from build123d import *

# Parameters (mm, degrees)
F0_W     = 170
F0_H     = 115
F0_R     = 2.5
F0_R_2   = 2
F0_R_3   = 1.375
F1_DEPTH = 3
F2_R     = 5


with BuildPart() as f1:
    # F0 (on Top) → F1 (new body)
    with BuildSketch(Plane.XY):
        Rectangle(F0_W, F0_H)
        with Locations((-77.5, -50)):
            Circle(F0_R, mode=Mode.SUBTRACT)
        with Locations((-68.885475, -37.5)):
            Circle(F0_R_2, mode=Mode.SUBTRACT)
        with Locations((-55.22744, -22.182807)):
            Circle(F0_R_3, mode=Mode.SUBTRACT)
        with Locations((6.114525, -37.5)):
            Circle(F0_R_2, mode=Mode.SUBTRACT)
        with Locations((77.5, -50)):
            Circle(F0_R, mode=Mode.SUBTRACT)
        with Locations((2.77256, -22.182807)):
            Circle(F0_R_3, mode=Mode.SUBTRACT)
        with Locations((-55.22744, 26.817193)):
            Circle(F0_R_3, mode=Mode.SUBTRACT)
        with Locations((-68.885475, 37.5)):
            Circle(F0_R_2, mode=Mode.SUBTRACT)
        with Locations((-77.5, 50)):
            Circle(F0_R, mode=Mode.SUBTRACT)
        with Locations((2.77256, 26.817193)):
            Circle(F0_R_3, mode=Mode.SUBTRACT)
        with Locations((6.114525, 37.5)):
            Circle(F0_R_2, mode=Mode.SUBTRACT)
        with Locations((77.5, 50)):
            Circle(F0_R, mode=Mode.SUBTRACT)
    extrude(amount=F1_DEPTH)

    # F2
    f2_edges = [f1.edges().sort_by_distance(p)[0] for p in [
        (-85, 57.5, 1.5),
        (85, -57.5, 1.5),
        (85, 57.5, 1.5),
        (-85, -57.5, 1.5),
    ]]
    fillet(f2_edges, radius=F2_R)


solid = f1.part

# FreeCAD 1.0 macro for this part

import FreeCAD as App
import Part
import Sketcher
from FreeCAD import Vector
Q = App.Units.Quantity


def edges_at(feature, points):
    """Names of the edges that pass closest to the given points."""
    edges = feature.Shape.Edges
    near = lambda p: min(range(len(edges)), key=lambda i: edges[i].distToShape(Part.Vertex(*p))[0])
    return sorted({f"Edge{near(p) + 1}" for p in points})

doc = App.newDocument("Part")
body = doc.addObject("PartDesign::Body", "Body")

# Sketch on XY plane
sketch1 = body.newObject("Sketcher::SketchObject", "Sketch")
sketch1.AttachmentSupport = (doc.getObject("XY_Plane"), [""])
sketch1.MapMode = "FlatFace"
sketch1.addGeometry(Part.LineSegment(Vector(-85, 57.5, 0), Vector(-85, -57.5, 0)), False)
sketch1.addGeometry(Part.LineSegment(Vector(-85, -57.5, 0), Vector(85, -57.5, 0)), False)
sketch1.addGeometry(Part.LineSegment(Vector(85, -57.5, 0), Vector(85, 57.5, 0)), False)
sketch1.addGeometry(Part.LineSegment(Vector(85, 57.5, 0), Vector(-85, 57.5, 0)), False)
sketch1.addGeometry(Part.Circle(Vector(-77.5, -50, 0), Vector(0, 0, 1), 2.5), False)
sketch1.addGeometry(Part.Circle(Vector(-68.885475, -37.5, 0), Vector(0, 0, 1), 2), False)
sketch1.addGeometry(Part.Circle(Vector(-55.22744, -22.182807, 0), Vector(0, 0, 1), 1.375), False)
sketch1.addGeometry(Part.Circle(Vector(6.114525, -37.5, 0), Vector(0, 0, 1), 2), False)
sketch1.addGeometry(Part.Circle(Vector(77.5, -50, 0), Vector(0, 0, 1), 2.5), False)
sketch1.addGeometry(Part.Circle(Vector(2.77256, -22.182807, 0), Vector(0, 0, 1), 1.375), False)
sketch1.addGeometry(Part.Circle(Vector(-68.885475, 37.5, 0), Vector(0, 0, 1), 2), False)
sketch1.addGeometry(Part.Circle(Vector(-55.22744, 26.817193, 0), Vector(0, 0, 1), 1.375), False)
sketch1.addGeometry(Part.Circle(Vector(-77.5, 50, 0), Vector(0, 0, 1), 2.5), False)
sketch1.addGeometry(Part.Circle(Vector(2.77256, 26.817193, 0), Vector(0, 0, 1), 1.375), False)
sketch1.addGeometry(Part.Circle(Vector(6.114525, 37.5, 0), Vector(0, 0, 1), 2), False)
sketch1.addGeometry(Part.Circle(Vector(77.5, 50, 0), Vector(0, 0, 1), 2.5), False)
sketch1.addConstraint(Sketcher.Constraint("Coincident", 0, 2, 1, 1))
sketch1.addConstraint(Sketcher.Constraint("Coincident", 1, 2, 2, 1))
sketch1.addConstraint(Sketcher.Constraint("Coincident", 2, 2, 3, 1))
sketch1.addConstraint(Sketcher.Constraint("Coincident", 3, 2, 0, 1))
sketch1.addConstraint(Sketcher.Constraint("Vertical", 0))
sketch1.addConstraint(Sketcher.Constraint("Horizontal", 1))
sketch1.addConstraint(Sketcher.Constraint("Vertical", 2))
sketch1.addConstraint(Sketcher.Constraint("Horizontal", 3))
sketch1.addConstraint(Sketcher.Constraint("Equal", 5, 7))
sketch1.addConstraint(Sketcher.Constraint("Equal", 4, 8))
sketch1.addConstraint(Sketcher.Constraint("Equal", 6, 9))
sketch1.addConstraint(Sketcher.Constraint("Equal", 7, 10))
sketch1.addConstraint(Sketcher.Constraint("Equal", 9, 11))
sketch1.addConstraint(Sketcher.Constraint("Equal", 8, 12))
sketch1.addConstraint(Sketcher.Constraint("Equal", 11, 13))
sketch1.addConstraint(Sketcher.Constraint("Equal", 10, 14))
sketch1.addConstraint(Sketcher.Constraint("Equal", 12, 15))
sketch1.addConstraint(Sketcher.Constraint("Symmetric", 8, 3, 12, 3, -1, 1))
sketch1.addConstraint(Sketcher.Constraint("Symmetric", 4, 3, 15, 3, -1, 1))
sketch1.addConstraint(Sketcher.Constraint("Symmetric", 0, 2, 2, 2, -1, 1))
sketch1.addConstraint(Sketcher.Constraint("Symmetric", 4, 3, 8, 3, -2))
sketch1.addConstraint(Sketcher.Constraint("Symmetric", 5, 3, 10, 3, -1))
sketch1.addConstraint(Sketcher.Constraint("Symmetric", 7, 3, 14, 3, -1))
sketch1.addConstraint(Sketcher.Constraint("Horizontal", 5, 3, 7, 3))
sketch1.addConstraint(Sketcher.Constraint("Horizontal", 6, 3, 9, 3))
sketch1.addConstraint(Sketcher.Constraint("Horizontal", 11, 3, 13, 3))
sketch1.addConstraint(Sketcher.Constraint("Vertical", 6, 3, 11, 3))
sketch1.addConstraint(Sketcher.Constraint("Vertical", 9, 3, 13, 3))
sketch1.addConstraint(Sketcher.Constraint("Diameter", 4, Q("5 mm")))
sketch1.addConstraint(Sketcher.Constraint("Diameter", 5, Q("4 mm")))
sketch1.addConstraint(Sketcher.Constraint("Diameter", 6, Q("2.75 mm")))
sketch1.addConstraint(Sketcher.Constraint("DistanceX", 1, 1, 1, 2, Q("170 mm")))
sketch1.addConstraint(Sketcher.Constraint("DistanceY", 0, 2, 0, 1, Q("115 mm")))
sketch1.addConstraint(Sketcher.Constraint("DistanceY", 4, 3, -1, 1, Q("50 mm")))
sketch1.addConstraint(Sketcher.Constraint("DistanceX", 5, 3, 7, 3, Q("75 mm")))
sketch1.addConstraint(Sketcher.Constraint("DistanceX", 4, 3, 8, 3, Q("155 mm")))
sketch1.addConstraint(Sketcher.Constraint("DistanceX", 6, 3, 9, 3, Q("58 mm")))
sketch1.addConstraint(Sketcher.Constraint("DistanceY", 5, 3, 10, 3, Q("75 mm")))
sketch1.addConstraint(Sketcher.Constraint("DistanceY", 6, 3, 11, 3, Q("49 mm")))
sketch1.addConstraint(Sketcher.Constraint("DistanceX", 6, 3, -1, 1, Q("55.22744 mm")))
sketch1.addConstraint(Sketcher.Constraint("DistanceX", 5, 3, -1, 1, Q("68.885475 mm")))
sketch1.addConstraint(Sketcher.Constraint("DistanceY", 6, 3, -1, 1, Q("22.182807 mm")))
pad1 = body.newObject("PartDesign::Pad", "Pad")
pad1.Profile = sketch1
pad1.Length = 3
doc.recompute()

fillet = body.newObject("PartDesign::Fillet", "Fillet")
fillet.Base = (pad1, edges_at(pad1, [
    (-85, 57.5, 1.5),
    (85, -57.5, 1.5),
    (85, 57.5, 1.5),
    (-85, -57.5, 1.5),
]))
fillet.Radius = 5

doc.recompute()
